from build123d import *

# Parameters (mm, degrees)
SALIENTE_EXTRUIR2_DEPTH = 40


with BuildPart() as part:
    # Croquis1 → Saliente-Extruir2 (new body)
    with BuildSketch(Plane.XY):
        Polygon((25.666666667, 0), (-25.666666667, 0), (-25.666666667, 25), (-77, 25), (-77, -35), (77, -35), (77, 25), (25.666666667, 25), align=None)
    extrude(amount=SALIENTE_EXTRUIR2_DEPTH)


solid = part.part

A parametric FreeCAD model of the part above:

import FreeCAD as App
import Part
import Sketcher
from FreeCAD import Vector
Q = App.Units.Quantity


def add_polygon(sketch, points):
    """Adds a closed chain of lines whose ends are joined by coincident constraints."""
    first, n = sketch.GeometryCount, len(points)
    for a, b in zip(points, points[1:] + points[:1]):
        sketch.addGeometry(Part.LineSegment(App.Vector(*a, 0), App.Vector(*b, 0)), False)
    for i in range(n):
        sketch.addConstraint(Sketcher.Constraint("Coincident", first + i, 2, first + (i + 1) % n, 1))

doc = App.newDocument("Part")
body = doc.addObject("PartDesign::Body", "Body")

sketch1 = doc.addObject("Sketcher::SketchObject", "Sketch")
body.addObject(sketch1)
sketch1.AttachmentSupport = (doc.XY_Plane, [""])
sketch1.MapMode = "FlatFace"
add_polygon(sketch1, [(26, 0), (-26, 0), (-26, 25), (-77, 25), (-77, -35), (77, -35), (77, 25), (26, 25)])
sketch1.addConstraint([
    Sketcher.Constraint("Horizontal", 0),
    Sketcher.Constraint("Vertical", 1),
    Sketcher.Constraint("Horizontal", 2),
    Sketcher.Constraint("Vertical", 3),
    Sketcher.Constraint("Horizontal", 4),
    Sketcher.Constraint("Vertical", 5),
    Sketcher.Constraint("Horizontal", 6),
    Sketcher.Constraint("Vertical", 7),
    Sketcher.Constraint("Symmetric", 0, 2, 7, 2, -1, 1),
    Sketcher.Constraint("Symmetric", 2, 2, 5, 2, -2),
    Sketcher.Constraint("Equal", 0, 2),
    Sketcher.Constraint("DistanceX", 4, 1, 4, 2, Q("154 mm")),
    Sketcher.Constraint("DistanceY", 1, 1, 1, 2, Q("25 mm")),
    Sketcher.Constraint("DistanceY", 3, 2, 3, 1, Q("60 mm")),
])
pad1 = doc.addObject("PartDesign::Pad", "Pad")
body.addObject(pad1)
pad1.Profile = sketch1
pad1.Length = 40

doc.recompute()
